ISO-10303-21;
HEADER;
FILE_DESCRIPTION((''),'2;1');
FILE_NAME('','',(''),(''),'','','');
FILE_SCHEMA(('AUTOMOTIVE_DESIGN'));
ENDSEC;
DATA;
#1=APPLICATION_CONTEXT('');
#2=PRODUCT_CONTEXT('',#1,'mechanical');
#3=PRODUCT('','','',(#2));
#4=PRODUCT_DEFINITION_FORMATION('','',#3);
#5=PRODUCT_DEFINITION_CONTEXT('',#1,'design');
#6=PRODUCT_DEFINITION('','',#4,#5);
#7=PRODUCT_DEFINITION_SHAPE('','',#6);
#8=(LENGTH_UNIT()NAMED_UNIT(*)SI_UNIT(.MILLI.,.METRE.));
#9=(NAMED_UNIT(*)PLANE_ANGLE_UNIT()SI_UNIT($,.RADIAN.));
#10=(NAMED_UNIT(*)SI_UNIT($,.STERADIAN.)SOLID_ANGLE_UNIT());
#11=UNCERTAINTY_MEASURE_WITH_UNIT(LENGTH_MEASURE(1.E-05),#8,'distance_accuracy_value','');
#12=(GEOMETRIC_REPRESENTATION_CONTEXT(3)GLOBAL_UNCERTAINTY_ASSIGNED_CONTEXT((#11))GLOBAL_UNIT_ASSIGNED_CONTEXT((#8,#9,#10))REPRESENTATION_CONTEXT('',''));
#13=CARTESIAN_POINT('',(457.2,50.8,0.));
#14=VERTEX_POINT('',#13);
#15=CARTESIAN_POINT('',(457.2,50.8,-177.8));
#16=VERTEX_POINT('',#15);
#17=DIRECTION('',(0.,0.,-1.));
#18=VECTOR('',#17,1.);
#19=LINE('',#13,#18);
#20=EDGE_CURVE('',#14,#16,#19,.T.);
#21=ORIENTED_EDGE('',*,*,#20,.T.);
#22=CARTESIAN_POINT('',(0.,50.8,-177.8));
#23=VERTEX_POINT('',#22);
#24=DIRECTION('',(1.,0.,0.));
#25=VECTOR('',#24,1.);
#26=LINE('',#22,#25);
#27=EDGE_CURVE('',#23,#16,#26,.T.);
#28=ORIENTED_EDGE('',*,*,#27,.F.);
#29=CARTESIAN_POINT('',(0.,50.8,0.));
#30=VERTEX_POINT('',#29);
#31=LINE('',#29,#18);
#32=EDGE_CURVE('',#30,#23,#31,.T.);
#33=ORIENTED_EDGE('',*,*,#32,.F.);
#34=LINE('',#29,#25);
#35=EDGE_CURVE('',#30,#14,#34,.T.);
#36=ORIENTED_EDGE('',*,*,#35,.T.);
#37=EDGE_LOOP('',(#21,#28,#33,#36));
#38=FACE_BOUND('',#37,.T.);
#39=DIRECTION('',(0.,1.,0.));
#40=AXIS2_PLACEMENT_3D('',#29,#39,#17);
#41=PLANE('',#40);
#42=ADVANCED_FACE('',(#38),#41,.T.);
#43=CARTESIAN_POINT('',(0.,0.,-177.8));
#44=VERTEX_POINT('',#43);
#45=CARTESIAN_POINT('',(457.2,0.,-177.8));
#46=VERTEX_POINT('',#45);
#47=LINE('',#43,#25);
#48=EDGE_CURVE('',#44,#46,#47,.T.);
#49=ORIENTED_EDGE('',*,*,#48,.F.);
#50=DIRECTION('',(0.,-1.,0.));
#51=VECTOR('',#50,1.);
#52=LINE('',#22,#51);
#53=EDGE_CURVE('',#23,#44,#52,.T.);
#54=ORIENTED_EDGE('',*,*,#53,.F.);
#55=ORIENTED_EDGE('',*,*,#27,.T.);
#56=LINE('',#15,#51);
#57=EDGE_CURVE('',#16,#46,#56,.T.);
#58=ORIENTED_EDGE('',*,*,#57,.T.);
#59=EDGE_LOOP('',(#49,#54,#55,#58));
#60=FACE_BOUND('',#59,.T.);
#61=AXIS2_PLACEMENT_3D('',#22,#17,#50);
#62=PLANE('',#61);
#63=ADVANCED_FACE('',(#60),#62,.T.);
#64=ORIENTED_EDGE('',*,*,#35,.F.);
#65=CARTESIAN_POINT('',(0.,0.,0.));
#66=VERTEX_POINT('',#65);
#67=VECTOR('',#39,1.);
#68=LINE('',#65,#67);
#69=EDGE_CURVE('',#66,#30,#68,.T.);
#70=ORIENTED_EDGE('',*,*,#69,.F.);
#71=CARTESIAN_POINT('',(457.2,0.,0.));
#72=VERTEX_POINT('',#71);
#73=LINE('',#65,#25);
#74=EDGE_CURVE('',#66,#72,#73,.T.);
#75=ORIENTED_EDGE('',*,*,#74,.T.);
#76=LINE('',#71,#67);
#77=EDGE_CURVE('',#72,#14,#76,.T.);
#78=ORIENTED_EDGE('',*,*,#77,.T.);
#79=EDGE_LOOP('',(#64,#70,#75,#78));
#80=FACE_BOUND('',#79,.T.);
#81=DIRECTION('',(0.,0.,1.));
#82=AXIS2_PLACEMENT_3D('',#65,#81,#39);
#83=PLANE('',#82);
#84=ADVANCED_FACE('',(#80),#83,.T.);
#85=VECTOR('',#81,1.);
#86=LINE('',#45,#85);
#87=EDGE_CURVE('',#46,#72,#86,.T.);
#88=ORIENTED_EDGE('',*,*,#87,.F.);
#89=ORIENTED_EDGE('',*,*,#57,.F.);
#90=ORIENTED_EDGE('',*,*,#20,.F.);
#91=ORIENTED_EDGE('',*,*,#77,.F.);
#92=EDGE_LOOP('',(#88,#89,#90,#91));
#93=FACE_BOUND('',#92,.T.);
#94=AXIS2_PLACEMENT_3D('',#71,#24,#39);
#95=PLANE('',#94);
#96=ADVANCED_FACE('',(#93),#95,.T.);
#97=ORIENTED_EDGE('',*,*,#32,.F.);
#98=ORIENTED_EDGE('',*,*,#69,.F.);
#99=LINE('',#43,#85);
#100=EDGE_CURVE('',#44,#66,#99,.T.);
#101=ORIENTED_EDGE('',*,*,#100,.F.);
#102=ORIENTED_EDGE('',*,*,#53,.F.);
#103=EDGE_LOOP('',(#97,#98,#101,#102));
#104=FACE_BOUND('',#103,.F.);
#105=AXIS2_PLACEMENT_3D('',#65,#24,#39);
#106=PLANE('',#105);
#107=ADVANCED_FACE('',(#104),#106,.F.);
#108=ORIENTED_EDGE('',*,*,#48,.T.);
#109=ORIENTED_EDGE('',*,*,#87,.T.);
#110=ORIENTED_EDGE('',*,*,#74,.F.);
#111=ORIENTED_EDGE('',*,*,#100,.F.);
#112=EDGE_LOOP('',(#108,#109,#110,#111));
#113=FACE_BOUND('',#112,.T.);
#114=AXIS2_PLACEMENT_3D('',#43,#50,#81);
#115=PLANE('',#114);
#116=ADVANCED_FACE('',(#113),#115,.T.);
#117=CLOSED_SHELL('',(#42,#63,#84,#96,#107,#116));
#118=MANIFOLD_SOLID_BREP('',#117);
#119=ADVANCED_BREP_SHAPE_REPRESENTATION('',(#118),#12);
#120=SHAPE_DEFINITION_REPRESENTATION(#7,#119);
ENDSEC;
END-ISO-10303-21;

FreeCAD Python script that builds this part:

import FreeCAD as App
import Part
import Sketcher
Q = App.Units.Quantity


def add_polygon(sketch, points):
    """Adds a closed chain of lines whose ends are joined by coincident constraints."""
    first, n = sketch.GeometryCount, len(points)
    for a, b in zip(points, points[1:] + points[:1]):
        sketch.addGeometry(Part.LineSegment(App.Vector(*a, 0), App.Vector(*b, 0)), False)
    for i in range(n):
        sketch.addConstraint(Sketcher.Constraint("Coincident", first + i, 2, first + (i + 1) % n, 1))

doc = App.newDocument("Part")
body = doc.addObject("PartDesign::Body", "Body")

# Sketch on YZ plane
sketch1 = body.newObject("Sketcher::SketchObject", "Sketch")
sketch1.AttachmentSupport = (doc.getObject("YZ_Plane"), [""])
sketch1.MapMode = "FlatFace"
add_polygon(sketch1, [(50.8, 0), (0, 0), (0, -177.8), (50.8, -177.8)])  # lines 0-3
sketch1.addConstraint(Sketcher.Constraint("Horizontal", 0))
sketch1.addConstraint(Sketcher.Constraint("Vertical", 1))
sketch1.addConstraint(Sketcher.Constraint("Horizontal", 2))
sketch1.addConstraint(Sketcher.Constraint("Vertical", 3))
sketch1.addConstraint(Sketcher.Constraint("Coincident", 0, 2, -1, 1))
sketch1.addConstraint(Sketcher.Constraint("DistanceX", 0, 2, 0, 1, Q("2 in")))
sketch1.addConstraint(Sketcher.Constraint("DistanceY", 1, 2, 1, 1, Q("7 in")))
pad1 = body.newObject("PartDesign::Pad", "Pad")
pad1.Profile = sketch1
pad1.Length = Q("18 in")

doc.recompute()
